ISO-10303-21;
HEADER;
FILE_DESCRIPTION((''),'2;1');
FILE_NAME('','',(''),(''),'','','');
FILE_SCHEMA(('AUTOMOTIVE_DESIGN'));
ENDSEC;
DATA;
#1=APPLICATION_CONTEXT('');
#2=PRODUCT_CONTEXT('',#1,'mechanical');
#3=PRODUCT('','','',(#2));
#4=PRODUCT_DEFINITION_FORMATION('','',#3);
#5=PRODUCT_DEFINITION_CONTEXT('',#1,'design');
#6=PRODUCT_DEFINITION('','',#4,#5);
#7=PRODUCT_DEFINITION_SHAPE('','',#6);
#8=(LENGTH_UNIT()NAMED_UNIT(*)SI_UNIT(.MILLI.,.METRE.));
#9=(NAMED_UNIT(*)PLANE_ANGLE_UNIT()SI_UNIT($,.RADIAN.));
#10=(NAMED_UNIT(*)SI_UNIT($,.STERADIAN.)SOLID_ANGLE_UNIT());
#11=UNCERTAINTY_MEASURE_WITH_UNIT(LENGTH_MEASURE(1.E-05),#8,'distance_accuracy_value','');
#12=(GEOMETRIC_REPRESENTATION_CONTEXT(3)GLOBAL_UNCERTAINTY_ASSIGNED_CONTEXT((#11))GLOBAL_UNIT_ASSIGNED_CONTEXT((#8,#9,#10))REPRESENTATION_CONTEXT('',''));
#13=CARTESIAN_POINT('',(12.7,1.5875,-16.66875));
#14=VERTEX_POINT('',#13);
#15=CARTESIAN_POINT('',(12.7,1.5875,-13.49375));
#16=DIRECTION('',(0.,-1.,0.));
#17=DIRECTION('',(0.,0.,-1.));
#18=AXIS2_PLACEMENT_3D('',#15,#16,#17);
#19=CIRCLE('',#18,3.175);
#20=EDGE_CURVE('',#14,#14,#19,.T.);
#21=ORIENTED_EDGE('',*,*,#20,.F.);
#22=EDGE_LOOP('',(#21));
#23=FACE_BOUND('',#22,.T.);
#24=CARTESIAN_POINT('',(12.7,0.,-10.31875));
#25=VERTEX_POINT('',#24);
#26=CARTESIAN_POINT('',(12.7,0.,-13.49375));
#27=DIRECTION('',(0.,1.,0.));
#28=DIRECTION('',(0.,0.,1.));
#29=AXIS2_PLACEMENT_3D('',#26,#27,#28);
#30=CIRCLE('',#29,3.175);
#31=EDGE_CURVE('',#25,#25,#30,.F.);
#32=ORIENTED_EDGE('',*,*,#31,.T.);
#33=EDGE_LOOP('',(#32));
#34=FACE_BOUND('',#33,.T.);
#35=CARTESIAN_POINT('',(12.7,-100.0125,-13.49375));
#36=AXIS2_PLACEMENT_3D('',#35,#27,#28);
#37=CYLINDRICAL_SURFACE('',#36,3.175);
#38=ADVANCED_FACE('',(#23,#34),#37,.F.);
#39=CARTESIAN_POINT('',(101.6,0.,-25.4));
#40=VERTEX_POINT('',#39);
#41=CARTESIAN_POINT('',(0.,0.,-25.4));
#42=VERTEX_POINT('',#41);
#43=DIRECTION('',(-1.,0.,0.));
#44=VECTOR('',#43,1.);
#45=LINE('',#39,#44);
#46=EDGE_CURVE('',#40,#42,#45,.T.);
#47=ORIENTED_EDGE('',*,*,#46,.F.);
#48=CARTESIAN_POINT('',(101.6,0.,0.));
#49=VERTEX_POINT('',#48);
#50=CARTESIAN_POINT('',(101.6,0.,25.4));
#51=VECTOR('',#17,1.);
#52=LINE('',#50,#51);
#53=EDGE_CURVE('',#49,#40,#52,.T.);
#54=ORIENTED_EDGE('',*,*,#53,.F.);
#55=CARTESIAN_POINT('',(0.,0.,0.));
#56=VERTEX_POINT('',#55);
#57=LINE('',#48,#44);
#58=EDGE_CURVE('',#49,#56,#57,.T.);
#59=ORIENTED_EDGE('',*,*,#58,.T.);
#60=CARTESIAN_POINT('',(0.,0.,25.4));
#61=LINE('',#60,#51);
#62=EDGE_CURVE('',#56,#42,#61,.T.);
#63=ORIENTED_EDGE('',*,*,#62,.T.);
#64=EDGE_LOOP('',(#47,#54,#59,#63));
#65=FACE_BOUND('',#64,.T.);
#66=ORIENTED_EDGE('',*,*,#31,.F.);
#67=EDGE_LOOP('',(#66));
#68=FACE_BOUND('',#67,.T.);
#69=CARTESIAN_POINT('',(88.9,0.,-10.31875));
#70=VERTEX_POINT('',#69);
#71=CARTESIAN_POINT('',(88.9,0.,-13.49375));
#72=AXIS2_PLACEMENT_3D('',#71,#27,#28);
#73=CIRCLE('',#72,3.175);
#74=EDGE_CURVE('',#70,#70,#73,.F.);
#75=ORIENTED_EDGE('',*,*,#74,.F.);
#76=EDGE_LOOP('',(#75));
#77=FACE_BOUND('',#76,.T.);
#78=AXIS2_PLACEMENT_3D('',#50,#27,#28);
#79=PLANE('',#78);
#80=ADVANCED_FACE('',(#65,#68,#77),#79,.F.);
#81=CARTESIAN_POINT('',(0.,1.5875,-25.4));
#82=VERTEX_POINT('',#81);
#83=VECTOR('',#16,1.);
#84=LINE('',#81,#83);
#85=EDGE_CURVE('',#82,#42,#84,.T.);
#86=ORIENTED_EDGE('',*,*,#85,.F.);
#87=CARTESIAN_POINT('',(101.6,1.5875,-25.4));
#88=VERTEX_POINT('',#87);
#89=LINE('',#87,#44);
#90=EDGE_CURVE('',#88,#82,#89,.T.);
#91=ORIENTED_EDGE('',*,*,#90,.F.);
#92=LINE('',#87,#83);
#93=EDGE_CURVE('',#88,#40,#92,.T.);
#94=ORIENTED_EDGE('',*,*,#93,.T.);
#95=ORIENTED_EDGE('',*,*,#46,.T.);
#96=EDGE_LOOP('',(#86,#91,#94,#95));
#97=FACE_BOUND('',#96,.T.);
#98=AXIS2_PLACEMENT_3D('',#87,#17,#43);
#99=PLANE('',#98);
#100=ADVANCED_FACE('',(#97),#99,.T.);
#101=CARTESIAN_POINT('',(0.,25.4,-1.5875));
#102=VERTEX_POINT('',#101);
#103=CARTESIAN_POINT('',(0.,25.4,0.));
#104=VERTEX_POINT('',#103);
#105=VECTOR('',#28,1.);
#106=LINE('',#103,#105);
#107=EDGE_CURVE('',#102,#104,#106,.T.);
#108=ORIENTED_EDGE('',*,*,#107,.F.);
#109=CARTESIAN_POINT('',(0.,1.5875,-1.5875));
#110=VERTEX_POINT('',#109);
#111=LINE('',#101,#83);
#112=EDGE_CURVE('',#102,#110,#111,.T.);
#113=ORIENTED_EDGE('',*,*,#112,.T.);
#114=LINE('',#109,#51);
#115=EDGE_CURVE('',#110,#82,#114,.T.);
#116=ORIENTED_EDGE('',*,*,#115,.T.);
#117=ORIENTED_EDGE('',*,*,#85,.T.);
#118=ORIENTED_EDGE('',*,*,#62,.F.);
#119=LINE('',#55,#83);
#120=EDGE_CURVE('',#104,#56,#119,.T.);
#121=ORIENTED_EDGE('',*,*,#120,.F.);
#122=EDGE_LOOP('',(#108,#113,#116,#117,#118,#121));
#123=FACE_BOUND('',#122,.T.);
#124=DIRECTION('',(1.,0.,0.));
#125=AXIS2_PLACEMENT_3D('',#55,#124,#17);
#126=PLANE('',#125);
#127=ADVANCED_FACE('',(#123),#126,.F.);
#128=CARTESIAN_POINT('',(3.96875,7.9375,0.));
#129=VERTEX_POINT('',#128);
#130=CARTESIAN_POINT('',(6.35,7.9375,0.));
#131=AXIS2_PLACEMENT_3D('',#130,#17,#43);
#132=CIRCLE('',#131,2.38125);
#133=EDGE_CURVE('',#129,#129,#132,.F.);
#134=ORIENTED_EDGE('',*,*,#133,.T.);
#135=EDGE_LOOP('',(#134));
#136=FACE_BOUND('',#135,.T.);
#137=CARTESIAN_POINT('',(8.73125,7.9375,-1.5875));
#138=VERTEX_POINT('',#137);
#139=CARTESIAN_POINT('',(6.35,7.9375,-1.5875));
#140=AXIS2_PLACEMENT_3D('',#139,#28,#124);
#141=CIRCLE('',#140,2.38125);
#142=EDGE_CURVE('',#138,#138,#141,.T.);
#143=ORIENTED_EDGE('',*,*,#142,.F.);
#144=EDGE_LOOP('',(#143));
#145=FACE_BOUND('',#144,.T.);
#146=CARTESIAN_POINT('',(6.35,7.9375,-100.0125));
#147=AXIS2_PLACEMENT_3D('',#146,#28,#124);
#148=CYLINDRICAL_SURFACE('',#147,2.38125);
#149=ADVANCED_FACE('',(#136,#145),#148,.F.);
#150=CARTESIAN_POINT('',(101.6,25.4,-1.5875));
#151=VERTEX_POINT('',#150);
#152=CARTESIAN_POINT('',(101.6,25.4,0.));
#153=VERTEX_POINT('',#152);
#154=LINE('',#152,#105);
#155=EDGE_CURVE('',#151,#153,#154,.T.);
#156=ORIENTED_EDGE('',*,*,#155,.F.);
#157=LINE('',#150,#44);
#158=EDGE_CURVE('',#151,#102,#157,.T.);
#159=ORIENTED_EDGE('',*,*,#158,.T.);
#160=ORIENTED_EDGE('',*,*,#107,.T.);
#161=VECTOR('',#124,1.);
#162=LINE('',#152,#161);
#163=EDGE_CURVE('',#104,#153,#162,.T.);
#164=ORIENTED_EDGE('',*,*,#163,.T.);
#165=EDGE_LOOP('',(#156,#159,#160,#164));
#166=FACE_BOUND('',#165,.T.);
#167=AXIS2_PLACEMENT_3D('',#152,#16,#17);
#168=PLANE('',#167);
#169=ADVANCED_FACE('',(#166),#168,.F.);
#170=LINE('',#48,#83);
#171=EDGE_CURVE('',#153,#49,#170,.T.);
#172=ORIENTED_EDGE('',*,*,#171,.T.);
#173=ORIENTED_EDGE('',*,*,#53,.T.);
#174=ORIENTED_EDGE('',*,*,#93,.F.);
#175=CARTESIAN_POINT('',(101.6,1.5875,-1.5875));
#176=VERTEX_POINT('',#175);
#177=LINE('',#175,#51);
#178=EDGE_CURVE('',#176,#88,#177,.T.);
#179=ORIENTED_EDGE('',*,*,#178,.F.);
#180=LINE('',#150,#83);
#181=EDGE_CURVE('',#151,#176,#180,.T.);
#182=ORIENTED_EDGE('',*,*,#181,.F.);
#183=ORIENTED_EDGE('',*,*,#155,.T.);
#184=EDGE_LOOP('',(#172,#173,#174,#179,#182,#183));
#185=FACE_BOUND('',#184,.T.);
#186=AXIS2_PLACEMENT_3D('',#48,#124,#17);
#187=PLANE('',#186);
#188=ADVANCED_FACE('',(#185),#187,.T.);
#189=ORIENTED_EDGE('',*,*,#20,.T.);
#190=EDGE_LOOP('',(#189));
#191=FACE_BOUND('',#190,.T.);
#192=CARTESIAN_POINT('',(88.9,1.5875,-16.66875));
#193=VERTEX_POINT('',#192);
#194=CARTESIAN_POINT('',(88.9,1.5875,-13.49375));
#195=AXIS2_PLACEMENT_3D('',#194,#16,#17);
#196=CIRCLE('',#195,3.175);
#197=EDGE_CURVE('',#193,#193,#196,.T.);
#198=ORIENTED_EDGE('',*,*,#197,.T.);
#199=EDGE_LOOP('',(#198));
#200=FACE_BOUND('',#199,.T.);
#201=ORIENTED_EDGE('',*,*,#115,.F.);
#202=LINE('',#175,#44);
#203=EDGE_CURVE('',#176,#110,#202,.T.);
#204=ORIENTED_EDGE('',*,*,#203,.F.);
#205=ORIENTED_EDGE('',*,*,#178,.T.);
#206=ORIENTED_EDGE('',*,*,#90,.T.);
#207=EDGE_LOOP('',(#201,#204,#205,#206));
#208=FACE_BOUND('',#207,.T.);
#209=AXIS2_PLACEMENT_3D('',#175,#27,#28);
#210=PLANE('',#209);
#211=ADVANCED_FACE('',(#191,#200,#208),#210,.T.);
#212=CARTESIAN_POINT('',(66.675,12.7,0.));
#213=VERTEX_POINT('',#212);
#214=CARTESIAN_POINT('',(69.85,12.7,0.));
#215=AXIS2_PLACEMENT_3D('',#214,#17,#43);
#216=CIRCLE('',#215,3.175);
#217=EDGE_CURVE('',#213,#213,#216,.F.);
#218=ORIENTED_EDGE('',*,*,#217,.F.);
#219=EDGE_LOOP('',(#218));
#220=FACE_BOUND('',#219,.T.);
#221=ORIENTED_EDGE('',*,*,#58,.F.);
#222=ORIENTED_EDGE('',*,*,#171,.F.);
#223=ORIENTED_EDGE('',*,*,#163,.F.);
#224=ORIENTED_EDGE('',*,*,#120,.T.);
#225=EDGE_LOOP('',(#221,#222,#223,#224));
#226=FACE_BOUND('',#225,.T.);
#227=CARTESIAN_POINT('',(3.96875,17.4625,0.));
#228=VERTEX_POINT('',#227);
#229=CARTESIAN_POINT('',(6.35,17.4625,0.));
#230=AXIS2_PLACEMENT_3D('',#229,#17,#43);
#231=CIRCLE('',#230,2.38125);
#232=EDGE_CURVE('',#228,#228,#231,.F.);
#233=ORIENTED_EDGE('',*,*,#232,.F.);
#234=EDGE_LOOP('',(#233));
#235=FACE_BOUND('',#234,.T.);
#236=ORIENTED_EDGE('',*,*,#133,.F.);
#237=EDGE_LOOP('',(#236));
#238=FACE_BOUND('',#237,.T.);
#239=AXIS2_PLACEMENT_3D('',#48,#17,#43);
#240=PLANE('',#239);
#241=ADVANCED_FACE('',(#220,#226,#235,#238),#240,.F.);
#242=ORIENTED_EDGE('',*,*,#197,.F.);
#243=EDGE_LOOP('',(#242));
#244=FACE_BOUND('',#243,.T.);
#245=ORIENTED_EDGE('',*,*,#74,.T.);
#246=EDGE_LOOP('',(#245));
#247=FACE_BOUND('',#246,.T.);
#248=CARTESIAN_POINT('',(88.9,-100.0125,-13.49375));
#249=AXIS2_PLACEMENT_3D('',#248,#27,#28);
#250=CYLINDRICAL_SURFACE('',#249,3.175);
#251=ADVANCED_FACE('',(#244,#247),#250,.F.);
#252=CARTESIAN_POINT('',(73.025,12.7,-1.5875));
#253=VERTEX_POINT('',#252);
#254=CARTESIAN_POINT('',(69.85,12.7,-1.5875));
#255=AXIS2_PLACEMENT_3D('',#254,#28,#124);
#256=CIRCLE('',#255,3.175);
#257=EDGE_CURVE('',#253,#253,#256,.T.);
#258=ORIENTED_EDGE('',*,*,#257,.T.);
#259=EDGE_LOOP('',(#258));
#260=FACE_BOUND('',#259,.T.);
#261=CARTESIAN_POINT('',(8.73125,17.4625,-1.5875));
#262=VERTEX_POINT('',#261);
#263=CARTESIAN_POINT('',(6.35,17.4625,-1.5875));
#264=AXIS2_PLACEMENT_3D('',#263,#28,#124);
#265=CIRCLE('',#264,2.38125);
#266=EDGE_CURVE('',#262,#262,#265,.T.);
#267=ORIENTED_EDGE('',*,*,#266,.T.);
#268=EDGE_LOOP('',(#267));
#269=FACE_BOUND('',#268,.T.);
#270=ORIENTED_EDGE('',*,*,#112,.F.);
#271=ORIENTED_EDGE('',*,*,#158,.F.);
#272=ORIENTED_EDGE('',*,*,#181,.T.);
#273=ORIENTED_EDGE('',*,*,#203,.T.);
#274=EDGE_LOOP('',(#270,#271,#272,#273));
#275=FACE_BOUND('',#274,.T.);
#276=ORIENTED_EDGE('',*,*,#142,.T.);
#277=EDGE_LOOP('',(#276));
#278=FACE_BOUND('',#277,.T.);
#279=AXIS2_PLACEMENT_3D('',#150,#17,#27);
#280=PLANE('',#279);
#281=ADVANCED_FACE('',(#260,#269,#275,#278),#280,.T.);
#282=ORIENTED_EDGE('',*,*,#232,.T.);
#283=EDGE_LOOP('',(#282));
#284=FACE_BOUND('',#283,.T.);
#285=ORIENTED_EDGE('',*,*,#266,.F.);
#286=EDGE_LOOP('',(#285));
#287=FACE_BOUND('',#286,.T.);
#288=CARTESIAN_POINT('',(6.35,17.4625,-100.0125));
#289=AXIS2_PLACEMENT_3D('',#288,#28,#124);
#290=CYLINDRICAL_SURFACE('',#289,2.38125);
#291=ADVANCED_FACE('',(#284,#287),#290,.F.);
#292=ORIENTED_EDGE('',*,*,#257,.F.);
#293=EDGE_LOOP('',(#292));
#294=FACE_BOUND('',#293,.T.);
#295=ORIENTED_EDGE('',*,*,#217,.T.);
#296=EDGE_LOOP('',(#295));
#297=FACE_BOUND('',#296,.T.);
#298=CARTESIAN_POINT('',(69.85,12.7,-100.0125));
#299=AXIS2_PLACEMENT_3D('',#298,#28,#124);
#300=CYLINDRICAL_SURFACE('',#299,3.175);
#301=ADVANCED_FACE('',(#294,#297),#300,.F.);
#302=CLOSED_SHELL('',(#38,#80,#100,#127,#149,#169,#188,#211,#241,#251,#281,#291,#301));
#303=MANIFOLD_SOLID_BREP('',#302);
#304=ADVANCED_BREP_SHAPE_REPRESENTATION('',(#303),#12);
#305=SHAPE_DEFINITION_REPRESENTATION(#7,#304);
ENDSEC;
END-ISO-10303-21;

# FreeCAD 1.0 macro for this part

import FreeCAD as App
import Part
import Sketcher
from FreeCAD import Vector
Q = App.Units.Quantity


def add_polygon(sketch, points):
    """Adds a closed chain of lines whose ends are joined by coincident constraints."""
    first, n = sketch.GeometryCount, len(points)
    for a, b in zip(points, points[1:] + points[:1]):
        sketch.addGeometry(Part.LineSegment(App.Vector(*a, 0), App.Vector(*b, 0)), False)
    for i in range(n):
        sketch.addConstraint(Sketcher.Constraint("Coincident", first + i, 2, first + (i + 1) % n, 1))

doc = App.newDocument("Part")
body = doc.addObject("PartDesign::Body", "Body")

# Sketch on YZ plane
sketch1 = body.newObject("Sketcher::SketchObject", "Sketch")
sketch1.AttachmentSupport = (doc.getObject("YZ_Plane"), [""])
sketch1.MapMode = "FlatFace"
add_polygon(sketch1, [(0, 0), (25.4, 0), (25.4, 1.6), (1.6, 1.6), (1.6, 25.4), (0, 25.4)])  # lines 0-5
sketch1.addConstraint([
    Sketcher.Constraint("Horizontal", 0),
    Sketcher.Constraint("Vertical", 1),
    Sketcher.Constraint("Horizontal", 2),
    Sketcher.Constraint("Vertical", 3),
    Sketcher.Constraint("Horizontal", 4),
    Sketcher.Constraint("Vertical", 5),
    Sketcher.Constraint("Coincident", 5, 2, -1, 1),
    Sketcher.Constraint("Equal", 4, 1),
    Sketcher.Constraint("Equal", 2, 3),
    Sketcher.Constraint("DistanceX", 0, 1, 0, 2, Q("1 in")),
    Sketcher.Constraint("DistanceX", 2, 2, 2, 1, Q("0.9375 in")),
])
pad1 = body.newObject("PartDesign::Pad", "Pad")
pad1.Profile = sketch1
pad1.Length = Q("4 in")

# Sketch on XZ plane
sketch2 = body.newObject("Sketcher::SketchObject", "Sketch001")
sketch2.AttachmentSupport = (doc.getObject("XZ_Plane"), [""])
sketch2.MapMode = "FlatFace"
sketch2.AttachmentOffset = App.Placement(Vector(0, 0, -0.0625 * 25.4), App.Rotation())
sketch2.addGeometry([
    Part.Circle(Vector(12.7, 13.5, 0), Vector(0, 0, 1), 3.2),
    Part.Circle(Vector(88.9, 13.5, 0), Vector(0, 0, 1), 3.2),
], False)
sketch2.addConstraint([
    Sketcher.Constraint("Equal", 0, 1),
    Sketcher.Constraint("Horizontal", 0, 3, 1, 3),
    Sketcher.Constraint("Diameter", 0, Q("0.25 in")),
    Sketcher.Constraint("DistanceX", 0, 3, 1, 3, Q("3 in")),
    Sketcher.Constraint("DistanceX", -1, 1, 0, 3, Q("0.5 in")),
    Sketcher.Constraint("DistanceY", -1, 1, 0, 3, Q("0.53125 in")),
])
pocket1 = body.newObject("PartDesign::Pocket", "Pocket")
pocket1.Profile = sketch2
pocket1.Length = Q("4 in")
pocket1.Reversed = True

# Sketch on XY plane
sketch3 = body.newObject("Sketcher::SketchObject", "Sketch002")
sketch3.AttachmentSupport = (doc.getObject("XY_Plane"), [""])
sketch3.MapMode = "FlatFace"
sketch3.AttachmentOffset = App.Placement(Vector(0, 0, 0.0625 * 25.4), App.Rotation())
sketch3.addGeometry([
    Part.Circle(Vector(69.8, 12.7, 0), Vector(0, 0, 1), 3.2),
    Part.Circle(Vector(6.3, 17.5, 0), Vector(0, 0, 1), 2.4),
    Part.Circle(Vector(6.3, 7.9, 0), Vector(0, 0, 1), 2.4),
], False)
sketch3.addConstraint([
    Sketcher.Constraint("Equal", 1, 2),
    Sketcher.Constraint("Vertical", 1, 3, 2, 3),
    Sketcher.Constraint("Diameter", 0, Q("0.25 in")),
    Sketcher.Constraint("Diameter", 1, Q("0.1875 in")),
    Sketcher.Constraint("DistanceY", -1, 1, 0, 3, Q("0.5 in")),
    Sketcher.Constraint("DistanceX", 1, 3, 0, 3, Q("2.5 in")),
    Sketcher.Constraint("DistanceX", -1, 1, 0, 3, Q("2.75 in")),
    Sketcher.Constraint("DistanceY", -1, 1, 1, 3, Q("0.6875 in")),
    Sketcher.Constraint("DistanceY", -1, 1, 2, 3, Q("0.3125 in")),
])
pocket2 = body.newObject("PartDesign::Pocket", "Pocket001")
pocket2.Profile = sketch3
pocket2.Length = Q("4 in")
doc.recompute()

mirrored = body.newObject("PartDesign::Mirrored", "Mirrored")
mirrored.Originals = [pad1, pocket1, pocket2]
mirrored.MirrorPlane = (doc.getObject("XY_Plane"), [""])
body.Tip = mirrored

# Sketch on YZ plane
sketch4 = body.newObject("Sketcher::SketchObject", "Sketch003")
sketch4.AttachmentSupport = (doc.getObject("YZ_Plane"), [""])
sketch4.MapMode = "FlatFace"
add_polygon(sketch4, [(31, 0), (0, 0), (0, 30), (31, 30)])  # lines 0-3
sketch4.addConstraint([
    Sketcher.Constraint("Horizontal", 0),
    Sketcher.Constraint("Vertical", 1),
    Sketcher.Constraint("Horizontal", 2),
    Sketcher.Constraint("Vertical", 3),
    Sketcher.Constraint("Coincident", 0, 2, -1, 1),
    Sketcher.Constraint("DistanceX", 0, 2, 0, 1, Q("30.942193 mm")),
    Sketcher.Constraint("DistanceY", 1, 1, 1, 2, Q("29.676804 mm")),
])
pocket3 = body.newObject("PartDesign::Pocket", "Pocket002")
pocket3.Profile = sketch4
pocket3.Length = Q("4 in")
pocket3.Reversed = True

doc.recompute()
